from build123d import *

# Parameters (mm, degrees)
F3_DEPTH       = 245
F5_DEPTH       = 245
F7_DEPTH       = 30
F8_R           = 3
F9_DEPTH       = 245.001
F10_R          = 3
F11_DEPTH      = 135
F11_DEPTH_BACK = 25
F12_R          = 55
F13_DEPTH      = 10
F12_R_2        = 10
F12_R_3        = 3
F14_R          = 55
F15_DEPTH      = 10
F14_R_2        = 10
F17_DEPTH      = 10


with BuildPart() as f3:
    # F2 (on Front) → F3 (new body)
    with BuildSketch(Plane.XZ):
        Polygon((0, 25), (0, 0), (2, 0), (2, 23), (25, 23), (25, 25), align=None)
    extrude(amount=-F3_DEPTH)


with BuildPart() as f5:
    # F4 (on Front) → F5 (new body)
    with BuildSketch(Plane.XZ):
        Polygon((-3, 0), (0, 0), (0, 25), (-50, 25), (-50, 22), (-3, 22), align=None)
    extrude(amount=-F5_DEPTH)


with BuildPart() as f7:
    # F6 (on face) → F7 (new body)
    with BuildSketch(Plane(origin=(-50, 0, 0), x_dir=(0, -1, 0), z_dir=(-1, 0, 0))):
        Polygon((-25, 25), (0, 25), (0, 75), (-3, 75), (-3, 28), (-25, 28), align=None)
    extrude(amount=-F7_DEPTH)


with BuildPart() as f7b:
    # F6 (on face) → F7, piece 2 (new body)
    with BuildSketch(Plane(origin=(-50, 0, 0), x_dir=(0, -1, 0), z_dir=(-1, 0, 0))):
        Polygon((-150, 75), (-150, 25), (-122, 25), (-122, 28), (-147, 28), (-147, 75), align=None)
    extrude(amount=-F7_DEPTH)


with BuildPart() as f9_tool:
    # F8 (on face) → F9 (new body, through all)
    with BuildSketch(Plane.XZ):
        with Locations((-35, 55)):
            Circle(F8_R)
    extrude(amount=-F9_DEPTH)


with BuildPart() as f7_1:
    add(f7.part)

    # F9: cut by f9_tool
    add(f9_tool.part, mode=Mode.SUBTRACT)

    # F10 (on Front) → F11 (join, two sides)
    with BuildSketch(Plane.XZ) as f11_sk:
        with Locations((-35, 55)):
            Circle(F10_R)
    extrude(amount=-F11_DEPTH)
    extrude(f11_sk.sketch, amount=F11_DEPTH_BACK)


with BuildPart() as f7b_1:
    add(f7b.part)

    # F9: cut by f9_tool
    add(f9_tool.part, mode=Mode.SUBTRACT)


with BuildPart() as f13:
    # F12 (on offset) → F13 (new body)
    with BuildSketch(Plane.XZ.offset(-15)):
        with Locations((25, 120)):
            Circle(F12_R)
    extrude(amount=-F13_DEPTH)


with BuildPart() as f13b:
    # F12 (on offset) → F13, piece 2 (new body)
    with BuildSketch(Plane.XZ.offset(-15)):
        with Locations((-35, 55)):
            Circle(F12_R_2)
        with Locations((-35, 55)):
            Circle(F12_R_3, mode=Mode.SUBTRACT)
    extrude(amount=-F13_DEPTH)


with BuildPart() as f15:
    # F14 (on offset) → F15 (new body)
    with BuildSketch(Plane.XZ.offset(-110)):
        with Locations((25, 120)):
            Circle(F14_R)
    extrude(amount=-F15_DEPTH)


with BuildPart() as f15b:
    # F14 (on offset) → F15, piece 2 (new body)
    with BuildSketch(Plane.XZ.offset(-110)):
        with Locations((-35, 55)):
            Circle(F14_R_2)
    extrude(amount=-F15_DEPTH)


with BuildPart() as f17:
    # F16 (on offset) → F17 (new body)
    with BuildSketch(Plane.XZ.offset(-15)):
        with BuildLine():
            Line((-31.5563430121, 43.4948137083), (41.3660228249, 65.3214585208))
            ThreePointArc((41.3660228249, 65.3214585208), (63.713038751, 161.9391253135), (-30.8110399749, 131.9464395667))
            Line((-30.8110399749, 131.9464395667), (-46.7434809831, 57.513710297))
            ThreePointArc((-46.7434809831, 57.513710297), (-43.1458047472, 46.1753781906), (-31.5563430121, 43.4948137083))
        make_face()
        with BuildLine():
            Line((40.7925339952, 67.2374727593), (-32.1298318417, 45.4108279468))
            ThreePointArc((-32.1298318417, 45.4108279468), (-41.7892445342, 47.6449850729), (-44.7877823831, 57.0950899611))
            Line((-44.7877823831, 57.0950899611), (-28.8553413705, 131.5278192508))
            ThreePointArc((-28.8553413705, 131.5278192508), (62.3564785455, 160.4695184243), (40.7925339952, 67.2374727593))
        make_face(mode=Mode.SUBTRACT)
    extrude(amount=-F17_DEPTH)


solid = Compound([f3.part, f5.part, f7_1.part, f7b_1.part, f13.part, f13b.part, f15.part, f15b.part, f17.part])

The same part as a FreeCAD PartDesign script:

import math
import FreeCAD as App
import Part
import Sketcher
from FreeCAD import Vector
Q = App.Units.Quantity

doc = App.newDocument("Part")
body = doc.addObject("PartDesign::Body", "Body")

# Sketch on XZ plane
sketch1 = body.newObject("Sketcher::SketchObject", "Sketch")
sketch1.AttachmentSupport = (doc.getObject("XZ_Plane"), [""])
sketch1.MapMode = "FlatFace"
sketch1.addGeometry(Part.LineSegment(Vector(0, 25, 0), Vector(0, 0, 0)), False)
sketch1.addGeometry(Part.LineSegment(Vector(0, 0, 0), Vector(2, 0, 0)), False)
sketch1.addGeometry(Part.LineSegment(Vector(2, 0, 0), Vector(2, 23, 0)), False)
sketch1.addGeometry(Part.LineSegment(Vector(2, 23, 0), Vector(25, 23, 0)), False)
sketch1.addGeometry(Part.LineSegment(Vector(25, 23, 0), Vector(25, 25, 0)), False)
sketch1.addGeometry(Part.LineSegment(Vector(25, 25, 0), Vector(0, 25, 0)), False)
sketch1.addConstraint(Sketcher.Constraint("Coincident", 0, 2, 1, 1))
sketch1.addConstraint(Sketcher.Constraint("Coincident", 1, 2, 2, 1))
sketch1.addConstraint(Sketcher.Constraint("Coincident", 2, 2, 3, 1))
sketch1.addConstraint(Sketcher.Constraint("Coincident", 3, 2, 4, 1))
sketch1.addConstraint(Sketcher.Constraint("Coincident", 4, 2, 5, 1))
sketch1.addConstraint(Sketcher.Constraint("Coincident", 5, 2, 0, 1))
sketch1.addConstraint(Sketcher.Constraint("Vertical", 0))
sketch1.addConstraint(Sketcher.Constraint("Horizontal", 1))
sketch1.addConstraint(Sketcher.Constraint("Vertical", 2))
sketch1.addConstraint(Sketcher.Constraint("Horizontal", 3))
sketch1.addConstraint(Sketcher.Constraint("Vertical", 4))
sketch1.addConstraint(Sketcher.Constraint("Horizontal", 5))
sketch1.addConstraint(Sketcher.Constraint("Coincident", 0, 2, -1, 1))
sketch1.addConstraint(Sketcher.Constraint("Equal", 5, 0))
sketch1.addConstraint(Sketcher.Constraint("Equal", 3, 2))
sketch1.addConstraint(Sketcher.Constraint("DistanceX", 1, 1, 1, 2, Q("2 mm")))
sketch1.addConstraint(Sketcher.Constraint("DistanceX", 3, 1, 3, 2, Q("23 mm")))
pad1 = body.newObject("PartDesign::Pad", "Pad")
pad1.Profile = sketch1
pad1.Length = 245
pad1.Reversed = True
body2 = doc.addObject("PartDesign::Body", "Body001")

# Sketch on XZ plane
sketch2 = body2.newObject("Sketcher::SketchObject", "Sketch001")
sketch2.AttachmentSupport = (doc.getObject("XZ_Plane001"), [""])
sketch2.MapMode = "FlatFace"
sketch2.addGeometry(Part.LineSegment(Vector(-3, 0, 0), Vector(0, 0, 0)), False)
sketch2.addGeometry(Part.LineSegment(Vector(0, 0, 0), Vector(0, 25, 0)), False)
sketch2.addGeometry(Part.LineSegment(Vector(0, 25, 0), Vector(-50, 25, 0)), False)
sketch2.addGeometry(Part.LineSegment(Vector(-50, 25, 0), Vector(-50, 22, 0)), False)
sketch2.addGeometry(Part.LineSegment(Vector(-50, 22, 0), Vector(-3, 22, 0)), False)
sketch2.addGeometry(Part.LineSegment(Vector(-3, 22, 0), Vector(-3, 0, 0)), False)
sketch2.addConstraint(Sketcher.Constraint("Coincident", 0, 2, 1, 1))
sketch2.addConstraint(Sketcher.Constraint("Coincident", 1, 2, 2, 1))
sketch2.addConstraint(Sketcher.Constraint("Coincident", 2, 2, 3, 1))
sketch2.addConstraint(Sketcher.Constraint("Coincident", 3, 2, 4, 1))
sketch2.addConstraint(Sketcher.Constraint("Coincident", 4, 2, 5, 1))
sketch2.addConstraint(Sketcher.Constraint("Coincident", 5, 2, 0, 1))
sketch2.addConstraint(Sketcher.Constraint("Horizontal", 0))
sketch2.addConstraint(Sketcher.Constraint("Vertical", 1))
sketch2.addConstraint(Sketcher.Constraint("Horizontal", 2))
sketch2.addConstraint(Sketcher.Constraint("Vertical", 3))
sketch2.addConstraint(Sketcher.Constraint("Horizontal", 4))
sketch2.addConstraint(Sketcher.Constraint("Vertical", 5))
sketch2.addConstraint(Sketcher.Constraint("Coincident", 0, 2, -1, 1))
sketch2.addConstraint(Sketcher.Constraint("Equal", 0, 3))
sketch2.addConstraint(Sketcher.Constraint("DistanceX", 0, 1, 0, 2, Q("3 mm")))
sketch2.addConstraint(Sketcher.Constraint("DistanceX", 2, 2, 2, 1, Q("50 mm")))
sketch2.addConstraint(Sketcher.Constraint("DistanceY", 1, 1, 1, 2, Q("25 mm")))
pad2 = body2.newObject("PartDesign::Pad", "Pad001")
pad2.Profile = sketch2
pad2.Length = 245
pad2.Reversed = True
body3 = doc.addObject("PartDesign::Body", "Body002")

# Sketch on YZ plane
sketch3 = body3.newObject("Sketcher::SketchObject", "Sketch002")
sketch3.AttachmentSupport = (doc.getObject("YZ_Plane002"), [""])
sketch3.MapMode = "FlatFace"
sketch3.AttachmentOffset = App.Placement(Vector(0, 0, -50), App.Rotation())
sketch3.addGeometry(Part.LineSegment(Vector(25, 25, 0), Vector(0, 25, 0)), False)
sketch3.addGeometry(Part.LineSegment(Vector(0, 25, 0), Vector(0, 75, 0)), False)
sketch3.addGeometry(Part.LineSegment(Vector(0, 75, 0), Vector(3, 75, 0)), False)
sketch3.addGeometry(Part.LineSegment(Vector(3, 75, 0), Vector(3, 28, 0)), False)
sketch3.addGeometry(Part.LineSegment(Vector(3, 28, 0), Vector(25, 28, 0)), False)
sketch3.addGeometry(Part.LineSegment(Vector(25, 28, 0), Vector(25, 25, 0)), False)
sketch3.addConstraint(Sketcher.Constraint("Coincident", 0, 2, 1, 1))
sketch3.addConstraint(Sketcher.Constraint("Coincident", 1, 2, 2, 1))
sketch3.addConstraint(Sketcher.Constraint("Coincident", 2, 2, 3, 1))
sketch3.addConstraint(Sketcher.Constraint("Coincident", 3, 2, 4, 1))
sketch3.addConstraint(Sketcher.Constraint("Coincident", 4, 2, 5, 1))
sketch3.addConstraint(Sketcher.Constraint("Coincident", 5, 2, 0, 1))
sketch3.addConstraint(Sketcher.Constraint("Horizontal", 0))
sketch3.addConstraint(Sketcher.Constraint("Vertical", 1))
sketch3.addConstraint(Sketcher.Constraint("Horizontal", 2))
sketch3.addConstraint(Sketcher.Constraint("Vertical", 3))
sketch3.addConstraint(Sketcher.Constraint("Horizontal", 4))
sketch3.addConstraint(Sketcher.Constraint("Vertical", 5))
sketch3.addConstraint(Sketcher.Constraint("PointOnObject", 0, 2, -2))
sketch3.addConstraint(Sketcher.Constraint("Equal", 2, 5))
sketch3.addConstraint(Sketcher.Constraint("DistanceX", 0, 2, 0, 1, Q("25 mm")))
sketch3.addConstraint(Sketcher.Constraint("DistanceX", 2, 1, 2, 2, Q("3 mm")))
sketch3.addConstraint(Sketcher.Constraint("DistanceY", 1, 1, 1, 2, Q("50 mm")))
sketch3.addConstraint(Sketcher.Constraint("DistanceY", -1, 1, 0, 2, Q("25 mm")))
pad3 = body3.newObject("PartDesign::Pad", "Pad002")
pad3.Profile = sketch3
pad3.Length = 30
body4 = doc.addObject("PartDesign::Body", "Body003")

# Sketch on YZ plane
sketch4 = body4.newObject("Sketcher::SketchObject", "Sketch003")
sketch4.AttachmentSupport = (doc.getObject("YZ_Plane003"), [""])
sketch4.MapMode = "FlatFace"
sketch4.AttachmentOffset = App.Placement(Vector(0, 0, -50), App.Rotation())
sketch4.addGeometry(Part.LineSegment(Vector(150, 75, 0), Vector(150, 25, 0)), False)
sketch4.addGeometry(Part.LineSegment(Vector(150, 25, 0), Vector(122, 25, 0)), False)
sketch4.addGeometry(Part.LineSegment(Vector(122, 25, 0), Vector(122, 28, 0)), False)
sketch4.addGeometry(Part.LineSegment(Vector(122, 28, 0), Vector(147, 28, 0)), False)
sketch4.addGeometry(Part.LineSegment(Vector(147, 28, 0), Vector(147, 75, 0)), False)
sketch4.addGeometry(Part.LineSegment(Vector(147, 75, 0), Vector(150, 75, 0)), False)
sketch4.addConstraint(Sketcher.Constraint("Coincident", 0, 2, 1, 1))
sketch4.addConstraint(Sketcher.Constraint("Coincident", 1, 2, 2, 1))
sketch4.addConstraint(Sketcher.Constraint("Coincident", 2, 2, 3, 1))
sketch4.addConstraint(Sketcher.Constraint("Coincident", 3, 2, 4, 1))
sketch4.addConstraint(Sketcher.Constraint("Coincident", 4, 2, 5, 1))
sketch4.addConstraint(Sketcher.Constraint("Coincident", 5, 2, 0, 1))
sketch4.addConstraint(Sketcher.Constraint("Vertical", 0))
sketch4.addConstraint(Sketcher.Constraint("Horizontal", 1))
sketch4.addConstraint(Sketcher.Constraint("Vertical", 2))
sketch4.addConstraint(Sketcher.Constraint("Horizontal", 3))
sketch4.addConstraint(Sketcher.Constraint("Vertical", 4))
sketch4.addConstraint(Sketcher.Constraint("Horizontal", 5))
sketch4.addConstraint(Sketcher.Constraint("Equal", 5, 2))
sketch4.addConstraint(Sketcher.Constraint("DistanceX", 1, 2, 1, 1, Q("28 mm")))
sketch4.addConstraint(Sketcher.Constraint("DistanceX", 3, 1, 3, 2, Q("25 mm")))
sketch4.addConstraint(Sketcher.Constraint("DistanceY", 0, 2, 0, 1, Q("50 mm")))
sketch4.addConstraint(Sketcher.Constraint("DistanceX", -1, 1, 0, 2, Q("150 mm")))
sketch4.addConstraint(Sketcher.Constraint("DistanceY", -1, 1, 0, 2, Q("25 mm")))
pad4 = body4.newObject("PartDesign::Pad", "Pad003")
pad4.Profile = sketch4
pad4.Length = 30
body5 = doc.addObject("PartDesign::Body", "Body004")

# Sketch on XZ plane
sketch5 = body5.newObject("Sketcher::SketchObject", "Sketch004")
sketch5.AttachmentSupport = (doc.getObject("XZ_Plane004"), [""])
sketch5.MapMode = "FlatFace"
sketch5.addGeometry(Part.Circle(Vector(-35, 55, 0), Vector(0, 0, 1), 3), False)
sketch5.addConstraint(Sketcher.Constraint("Diameter", 0, Q("6 mm")))
sketch5.addConstraint(Sketcher.Constraint("DistanceX", 0, 3, -1, 1, Q("35 mm")))
sketch5.addConstraint(Sketcher.Constraint("DistanceY", -1, 1, 0, 3, Q("55 mm")))
pad5 = body5.newObject("PartDesign::Pad", "Pad004")
pad5.Profile = sketch5
pad5.Length = 245.001
pad5.Reversed = True
doc.recompute()

body6 = doc.addObject("PartDesign::Body", "Body005")
body6.BaseFeature = body5
boolean = body3.newObject("PartDesign::Boolean", "Boolean")
boolean.Type = "Cut"
boolean.addObjects([body6])
doc.recompute()

# Sketch on XZ plane
sketch6 = body3.newObject("Sketcher::SketchObject", "Sketch005")
sketch6.AttachmentSupport = (doc.getObject("XZ_Plane002"), [""])
sketch6.MapMode = "FlatFace"
sketch6.addGeometry(Part.Circle(Vector(-35, 55, 0), Vector(0, 0, 1), 3), False)
sketch6.addConstraint(Sketcher.Constraint("Diameter", 0, Q("6 mm")))
sketch6.addConstraint(Sketcher.Constraint("DistanceX", 0, 3, -1, 1, Q("35 mm")))
sketch6.addConstraint(Sketcher.Constraint("DistanceY", -1, 1, 0, 3, Q("55 mm")))
pad6 = body3.newObject("PartDesign::Pad", "Pad005")
pad6.Profile = sketch6
pad6.Type = "TwoLengths"
pad6.Length = 135
pad6.Length2 = 25
pad6.Reversed = True
doc.recompute()

boolean2 = body4.newObject("PartDesign::Boolean", "Boolean001")
boolean2.Type = "Cut"
boolean2.addObjects([body5])
body7 = doc.addObject("PartDesign::Body", "Body006")

# Sketch on XZ plane
sketch7 = body7.newObject("Sketcher::SketchObject", "Sketch006")
sketch7.AttachmentSupport = (doc.getObject("XZ_Plane006"), [""])
sketch7.MapMode = "FlatFace"
sketch7.AttachmentOffset = App.Placement(Vector(0, 0, -15), App.Rotation())
sketch7.addGeometry(Part.Circle(Vector(25, 120, 0), Vector(0, 0, 1), 55), False)
sketch7.addConstraint(Sketcher.Constraint("Diameter", 0, Q("110 mm")))
sketch7.addConstraint(Sketcher.Constraint("DistanceX", -1, 1, 0, 3, Q("25 mm")))
sketch7.addConstraint(Sketcher.Constraint("DistanceY", -1, 1, 0, 3, Q("120 mm")))
pad7 = body7.newObject("PartDesign::Pad", "Pad006")
pad7.Profile = sketch7
pad7.Length = 10
pad7.Reversed = True
body8 = doc.addObject("PartDesign::Body", "Body007")

# Sketch on XZ plane
sketch8 = body8.newObject("Sketcher::SketchObject", "Sketch007")
sketch8.AttachmentSupport = (doc.getObject("XZ_Plane007"), [""])
sketch8.MapMode = "FlatFace"
sketch8.AttachmentOffset = App.Placement(Vector(0, 0, -15), App.Rotation())
sketch8.addGeometry(Part.Circle(Vector(-35, 55, 0), Vector(0, 0, 1), 10), False)
sketch8.addGeometry(Part.Circle(Vector(-35, 55, 0), Vector(0, 0, 1), 3), False)
sketch8.addConstraint(Sketcher.Constraint("Coincident", 1, 3, 0, 3))
sketch8.addConstraint(Sketcher.Constraint("Diameter", 0, Q("20 mm")))
sketch8.addConstraint(Sketcher.Constraint("Diameter", 1, Q("6 mm")))
sketch8.addConstraint(Sketcher.Constraint("DistanceX", 0, 3, -1, 1, Q("35 mm")))
sketch8.addConstraint(Sketcher.Constraint("DistanceY", -1, 1, 0, 3, Q("55 mm")))
pad8 = body8.newObject("PartDesign::Pad", "Pad007")
pad8.Profile = sketch8
pad8.Length = 10
pad8.Reversed = True
body9 = doc.addObject("PartDesign::Body", "Body008")

# Sketch on XZ plane
sketch9 = body9.newObject("Sketcher::SketchObject", "Sketch008")
sketch9.AttachmentSupport = (doc.getObject("XZ_Plane008"), [""])
sketch9.MapMode = "FlatFace"
sketch9.AttachmentOffset = App.Placement(Vector(0, 0, -110), App.Rotation())
sketch9.addGeometry(Part.Circle(Vector(25, 120, 0), Vector(0, 0, 1), 55), False)
sketch9.addConstraint(Sketcher.Constraint("Diameter", 0, Q("110 mm")))
sketch9.addConstraint(Sketcher.Constraint("DistanceX", -1, 1, 0, 3, Q("25 mm")))
sketch9.addConstraint(Sketcher.Constraint("DistanceY", -1, 1, 0, 3, Q("120 mm")))
pad9 = body9.newObject("PartDesign::Pad", "Pad008")
pad9.Profile = sketch9
pad9.Length = 10
pad9.Reversed = True
body10 = doc.addObject("PartDesign::Body", "Body009")

# Sketch on XZ plane
sketch10 = body10.newObject("Sketcher::SketchObject", "Sketch009")
sketch10.AttachmentSupport = (doc.getObject("XZ_Plane009"), [""])
sketch10.MapMode = "FlatFace"
sketch10.AttachmentOffset = App.Placement(Vector(0, 0, -110), App.Rotation())
sketch10.addGeometry(Part.Circle(Vector(-35, 55, 0), Vector(0, 0, 1), 10), False)
sketch10.addConstraint(Sketcher.Constraint("Diameter", 0, Q("20 mm")))
sketch10.addConstraint(Sketcher.Constraint("DistanceX", 0, 3, -1, 1, Q("35 mm")))
sketch10.addConstraint(Sketcher.Constraint("DistanceY", -1, 1, 0, 3, Q("55 mm")))
pad10 = body10.newObject("PartDesign::Pad", "Pad009")
pad10.Profile = sketch10
pad10.Length = 10
pad10.Reversed = True
body11 = doc.addObject("PartDesign::Body", "Body010")

# Sketch on XZ plane
sketch11 = body11.newObject("Sketcher::SketchObject", "Sketch010")
sketch11.AttachmentSupport = (doc.getObject("XZ_Plane010"), [""])
sketch11.MapMode = "FlatFace"
sketch11.AttachmentOffset = App.Placement(Vector(0, 0, -15), App.Rotation())
sketch11.addGeometry(Part.LineSegment(Vector(-31.556343, 43.494814, 0), Vector(41.366023, 65.321459, 0)), False)
sketch11.addGeometry(Part.ArcOfCircle(Part.Circle(Vector(25, 120, 0), Vector(0, 0, 1), 57.075298), math.radians(-73.336851), math.radians(167.918071)), False)
sketch11.addGeometry(Part.LineSegment(Vector(-30.81104, 131.94644, 0), Vector(-46.743481, 57.51371, 0)), False)
sketch11.addGeometry(Part.ArcOfCircle(Part.Circle(Vector(-35, 55, 0), Vector(0, 0, 1), 12.0095), math.radians(167.918071), math.radians(286.663149)), False)
sketch11.addGeometry(Part.ArcOfCircle(Part.Circle(Vector(25, 120, 0), Vector(0, 0, 1), 55.075298), math.radians(-73.336851), math.radians(167.918071)), False)
sketch11.addGeometry(Part.LineSegment(Vector(40.792534, 67.237473, 0), Vector(-32.129832, 45.410828, 0)), False)
sketch11.addGeometry(Part.ArcOfCircle(Part.Circle(Vector(-35, 55, 0), Vector(0, 0, 1), 10.0095), math.radians(167.918071), math.radians(286.663149)), False)
sketch11.addGeometry(Part.LineSegment(Vector(-44.787782, 57.09509, 0), Vector(-28.855341, 131.527819, 0)), False)
sketch11.addConstraint(Sketcher.Constraint("Tangent", 0, 2, 1, 1))
sketch11.addConstraint(Sketcher.Constraint("Tangent", 1, 2, 2, 1))
sketch11.addConstraint(Sketcher.Constraint("Tangent", 2, 2, 3, 1))
sketch11.addConstraint(Sketcher.Constraint("Tangent", 3, 2, 0, 1))
sketch11.addConstraint(Sketcher.Constraint("Tangent", 4, 1, 5, 1))
sketch11.addConstraint(Sketcher.Constraint("Tangent", 5, 2, 6, 2))
sketch11.addConstraint(Sketcher.Constraint("Tangent", 6, 1, 7, 1))
sketch11.addConstraint(Sketcher.Constraint("Tangent", 7, 2, 4, 2))
sketch11.addConstraint(Sketcher.Constraint("Coincident", 4, 3, 1, 3))
sketch11.addConstraint(Sketcher.Constraint("Coincident", 6, 3, 3, 3))
sketch11.addConstraint(Sketcher.Constraint("Parallel", 0, 5))
sketch11.addConstraint(Sketcher.Constraint("DistanceX", -1, 1, 1, 3, Q("25 mm")))
sketch11.addConstraint(Sketcher.Constraint("DistanceY", -1, 1, 1, 3, Q("120 mm")))
sketch11.addConstraint(Sketcher.Constraint("DistanceX", 3, 3, -1, 1, Q("35 mm")))
sketch11.addConstraint(Sketcher.Constraint("DistanceY", -1, 1, 3, 3, Q("55 mm")))
sketch11.addConstraint(Sketcher.Constraint("Radius", 3, Q("12.0095 mm")))
sketch11.addConstraint(Sketcher.Constraint("Radius", 6, Q("10.0095 mm")))
sketch11.addConstraint(Sketcher.Constraint("Radius", 1, Q("57.075298 mm")))
pad11 = body11.newObject("PartDesign::Pad", "Pad010")
pad11.Profile = sketch11
pad11.Length = 10
pad11.Reversed = True

doc.recompute()
